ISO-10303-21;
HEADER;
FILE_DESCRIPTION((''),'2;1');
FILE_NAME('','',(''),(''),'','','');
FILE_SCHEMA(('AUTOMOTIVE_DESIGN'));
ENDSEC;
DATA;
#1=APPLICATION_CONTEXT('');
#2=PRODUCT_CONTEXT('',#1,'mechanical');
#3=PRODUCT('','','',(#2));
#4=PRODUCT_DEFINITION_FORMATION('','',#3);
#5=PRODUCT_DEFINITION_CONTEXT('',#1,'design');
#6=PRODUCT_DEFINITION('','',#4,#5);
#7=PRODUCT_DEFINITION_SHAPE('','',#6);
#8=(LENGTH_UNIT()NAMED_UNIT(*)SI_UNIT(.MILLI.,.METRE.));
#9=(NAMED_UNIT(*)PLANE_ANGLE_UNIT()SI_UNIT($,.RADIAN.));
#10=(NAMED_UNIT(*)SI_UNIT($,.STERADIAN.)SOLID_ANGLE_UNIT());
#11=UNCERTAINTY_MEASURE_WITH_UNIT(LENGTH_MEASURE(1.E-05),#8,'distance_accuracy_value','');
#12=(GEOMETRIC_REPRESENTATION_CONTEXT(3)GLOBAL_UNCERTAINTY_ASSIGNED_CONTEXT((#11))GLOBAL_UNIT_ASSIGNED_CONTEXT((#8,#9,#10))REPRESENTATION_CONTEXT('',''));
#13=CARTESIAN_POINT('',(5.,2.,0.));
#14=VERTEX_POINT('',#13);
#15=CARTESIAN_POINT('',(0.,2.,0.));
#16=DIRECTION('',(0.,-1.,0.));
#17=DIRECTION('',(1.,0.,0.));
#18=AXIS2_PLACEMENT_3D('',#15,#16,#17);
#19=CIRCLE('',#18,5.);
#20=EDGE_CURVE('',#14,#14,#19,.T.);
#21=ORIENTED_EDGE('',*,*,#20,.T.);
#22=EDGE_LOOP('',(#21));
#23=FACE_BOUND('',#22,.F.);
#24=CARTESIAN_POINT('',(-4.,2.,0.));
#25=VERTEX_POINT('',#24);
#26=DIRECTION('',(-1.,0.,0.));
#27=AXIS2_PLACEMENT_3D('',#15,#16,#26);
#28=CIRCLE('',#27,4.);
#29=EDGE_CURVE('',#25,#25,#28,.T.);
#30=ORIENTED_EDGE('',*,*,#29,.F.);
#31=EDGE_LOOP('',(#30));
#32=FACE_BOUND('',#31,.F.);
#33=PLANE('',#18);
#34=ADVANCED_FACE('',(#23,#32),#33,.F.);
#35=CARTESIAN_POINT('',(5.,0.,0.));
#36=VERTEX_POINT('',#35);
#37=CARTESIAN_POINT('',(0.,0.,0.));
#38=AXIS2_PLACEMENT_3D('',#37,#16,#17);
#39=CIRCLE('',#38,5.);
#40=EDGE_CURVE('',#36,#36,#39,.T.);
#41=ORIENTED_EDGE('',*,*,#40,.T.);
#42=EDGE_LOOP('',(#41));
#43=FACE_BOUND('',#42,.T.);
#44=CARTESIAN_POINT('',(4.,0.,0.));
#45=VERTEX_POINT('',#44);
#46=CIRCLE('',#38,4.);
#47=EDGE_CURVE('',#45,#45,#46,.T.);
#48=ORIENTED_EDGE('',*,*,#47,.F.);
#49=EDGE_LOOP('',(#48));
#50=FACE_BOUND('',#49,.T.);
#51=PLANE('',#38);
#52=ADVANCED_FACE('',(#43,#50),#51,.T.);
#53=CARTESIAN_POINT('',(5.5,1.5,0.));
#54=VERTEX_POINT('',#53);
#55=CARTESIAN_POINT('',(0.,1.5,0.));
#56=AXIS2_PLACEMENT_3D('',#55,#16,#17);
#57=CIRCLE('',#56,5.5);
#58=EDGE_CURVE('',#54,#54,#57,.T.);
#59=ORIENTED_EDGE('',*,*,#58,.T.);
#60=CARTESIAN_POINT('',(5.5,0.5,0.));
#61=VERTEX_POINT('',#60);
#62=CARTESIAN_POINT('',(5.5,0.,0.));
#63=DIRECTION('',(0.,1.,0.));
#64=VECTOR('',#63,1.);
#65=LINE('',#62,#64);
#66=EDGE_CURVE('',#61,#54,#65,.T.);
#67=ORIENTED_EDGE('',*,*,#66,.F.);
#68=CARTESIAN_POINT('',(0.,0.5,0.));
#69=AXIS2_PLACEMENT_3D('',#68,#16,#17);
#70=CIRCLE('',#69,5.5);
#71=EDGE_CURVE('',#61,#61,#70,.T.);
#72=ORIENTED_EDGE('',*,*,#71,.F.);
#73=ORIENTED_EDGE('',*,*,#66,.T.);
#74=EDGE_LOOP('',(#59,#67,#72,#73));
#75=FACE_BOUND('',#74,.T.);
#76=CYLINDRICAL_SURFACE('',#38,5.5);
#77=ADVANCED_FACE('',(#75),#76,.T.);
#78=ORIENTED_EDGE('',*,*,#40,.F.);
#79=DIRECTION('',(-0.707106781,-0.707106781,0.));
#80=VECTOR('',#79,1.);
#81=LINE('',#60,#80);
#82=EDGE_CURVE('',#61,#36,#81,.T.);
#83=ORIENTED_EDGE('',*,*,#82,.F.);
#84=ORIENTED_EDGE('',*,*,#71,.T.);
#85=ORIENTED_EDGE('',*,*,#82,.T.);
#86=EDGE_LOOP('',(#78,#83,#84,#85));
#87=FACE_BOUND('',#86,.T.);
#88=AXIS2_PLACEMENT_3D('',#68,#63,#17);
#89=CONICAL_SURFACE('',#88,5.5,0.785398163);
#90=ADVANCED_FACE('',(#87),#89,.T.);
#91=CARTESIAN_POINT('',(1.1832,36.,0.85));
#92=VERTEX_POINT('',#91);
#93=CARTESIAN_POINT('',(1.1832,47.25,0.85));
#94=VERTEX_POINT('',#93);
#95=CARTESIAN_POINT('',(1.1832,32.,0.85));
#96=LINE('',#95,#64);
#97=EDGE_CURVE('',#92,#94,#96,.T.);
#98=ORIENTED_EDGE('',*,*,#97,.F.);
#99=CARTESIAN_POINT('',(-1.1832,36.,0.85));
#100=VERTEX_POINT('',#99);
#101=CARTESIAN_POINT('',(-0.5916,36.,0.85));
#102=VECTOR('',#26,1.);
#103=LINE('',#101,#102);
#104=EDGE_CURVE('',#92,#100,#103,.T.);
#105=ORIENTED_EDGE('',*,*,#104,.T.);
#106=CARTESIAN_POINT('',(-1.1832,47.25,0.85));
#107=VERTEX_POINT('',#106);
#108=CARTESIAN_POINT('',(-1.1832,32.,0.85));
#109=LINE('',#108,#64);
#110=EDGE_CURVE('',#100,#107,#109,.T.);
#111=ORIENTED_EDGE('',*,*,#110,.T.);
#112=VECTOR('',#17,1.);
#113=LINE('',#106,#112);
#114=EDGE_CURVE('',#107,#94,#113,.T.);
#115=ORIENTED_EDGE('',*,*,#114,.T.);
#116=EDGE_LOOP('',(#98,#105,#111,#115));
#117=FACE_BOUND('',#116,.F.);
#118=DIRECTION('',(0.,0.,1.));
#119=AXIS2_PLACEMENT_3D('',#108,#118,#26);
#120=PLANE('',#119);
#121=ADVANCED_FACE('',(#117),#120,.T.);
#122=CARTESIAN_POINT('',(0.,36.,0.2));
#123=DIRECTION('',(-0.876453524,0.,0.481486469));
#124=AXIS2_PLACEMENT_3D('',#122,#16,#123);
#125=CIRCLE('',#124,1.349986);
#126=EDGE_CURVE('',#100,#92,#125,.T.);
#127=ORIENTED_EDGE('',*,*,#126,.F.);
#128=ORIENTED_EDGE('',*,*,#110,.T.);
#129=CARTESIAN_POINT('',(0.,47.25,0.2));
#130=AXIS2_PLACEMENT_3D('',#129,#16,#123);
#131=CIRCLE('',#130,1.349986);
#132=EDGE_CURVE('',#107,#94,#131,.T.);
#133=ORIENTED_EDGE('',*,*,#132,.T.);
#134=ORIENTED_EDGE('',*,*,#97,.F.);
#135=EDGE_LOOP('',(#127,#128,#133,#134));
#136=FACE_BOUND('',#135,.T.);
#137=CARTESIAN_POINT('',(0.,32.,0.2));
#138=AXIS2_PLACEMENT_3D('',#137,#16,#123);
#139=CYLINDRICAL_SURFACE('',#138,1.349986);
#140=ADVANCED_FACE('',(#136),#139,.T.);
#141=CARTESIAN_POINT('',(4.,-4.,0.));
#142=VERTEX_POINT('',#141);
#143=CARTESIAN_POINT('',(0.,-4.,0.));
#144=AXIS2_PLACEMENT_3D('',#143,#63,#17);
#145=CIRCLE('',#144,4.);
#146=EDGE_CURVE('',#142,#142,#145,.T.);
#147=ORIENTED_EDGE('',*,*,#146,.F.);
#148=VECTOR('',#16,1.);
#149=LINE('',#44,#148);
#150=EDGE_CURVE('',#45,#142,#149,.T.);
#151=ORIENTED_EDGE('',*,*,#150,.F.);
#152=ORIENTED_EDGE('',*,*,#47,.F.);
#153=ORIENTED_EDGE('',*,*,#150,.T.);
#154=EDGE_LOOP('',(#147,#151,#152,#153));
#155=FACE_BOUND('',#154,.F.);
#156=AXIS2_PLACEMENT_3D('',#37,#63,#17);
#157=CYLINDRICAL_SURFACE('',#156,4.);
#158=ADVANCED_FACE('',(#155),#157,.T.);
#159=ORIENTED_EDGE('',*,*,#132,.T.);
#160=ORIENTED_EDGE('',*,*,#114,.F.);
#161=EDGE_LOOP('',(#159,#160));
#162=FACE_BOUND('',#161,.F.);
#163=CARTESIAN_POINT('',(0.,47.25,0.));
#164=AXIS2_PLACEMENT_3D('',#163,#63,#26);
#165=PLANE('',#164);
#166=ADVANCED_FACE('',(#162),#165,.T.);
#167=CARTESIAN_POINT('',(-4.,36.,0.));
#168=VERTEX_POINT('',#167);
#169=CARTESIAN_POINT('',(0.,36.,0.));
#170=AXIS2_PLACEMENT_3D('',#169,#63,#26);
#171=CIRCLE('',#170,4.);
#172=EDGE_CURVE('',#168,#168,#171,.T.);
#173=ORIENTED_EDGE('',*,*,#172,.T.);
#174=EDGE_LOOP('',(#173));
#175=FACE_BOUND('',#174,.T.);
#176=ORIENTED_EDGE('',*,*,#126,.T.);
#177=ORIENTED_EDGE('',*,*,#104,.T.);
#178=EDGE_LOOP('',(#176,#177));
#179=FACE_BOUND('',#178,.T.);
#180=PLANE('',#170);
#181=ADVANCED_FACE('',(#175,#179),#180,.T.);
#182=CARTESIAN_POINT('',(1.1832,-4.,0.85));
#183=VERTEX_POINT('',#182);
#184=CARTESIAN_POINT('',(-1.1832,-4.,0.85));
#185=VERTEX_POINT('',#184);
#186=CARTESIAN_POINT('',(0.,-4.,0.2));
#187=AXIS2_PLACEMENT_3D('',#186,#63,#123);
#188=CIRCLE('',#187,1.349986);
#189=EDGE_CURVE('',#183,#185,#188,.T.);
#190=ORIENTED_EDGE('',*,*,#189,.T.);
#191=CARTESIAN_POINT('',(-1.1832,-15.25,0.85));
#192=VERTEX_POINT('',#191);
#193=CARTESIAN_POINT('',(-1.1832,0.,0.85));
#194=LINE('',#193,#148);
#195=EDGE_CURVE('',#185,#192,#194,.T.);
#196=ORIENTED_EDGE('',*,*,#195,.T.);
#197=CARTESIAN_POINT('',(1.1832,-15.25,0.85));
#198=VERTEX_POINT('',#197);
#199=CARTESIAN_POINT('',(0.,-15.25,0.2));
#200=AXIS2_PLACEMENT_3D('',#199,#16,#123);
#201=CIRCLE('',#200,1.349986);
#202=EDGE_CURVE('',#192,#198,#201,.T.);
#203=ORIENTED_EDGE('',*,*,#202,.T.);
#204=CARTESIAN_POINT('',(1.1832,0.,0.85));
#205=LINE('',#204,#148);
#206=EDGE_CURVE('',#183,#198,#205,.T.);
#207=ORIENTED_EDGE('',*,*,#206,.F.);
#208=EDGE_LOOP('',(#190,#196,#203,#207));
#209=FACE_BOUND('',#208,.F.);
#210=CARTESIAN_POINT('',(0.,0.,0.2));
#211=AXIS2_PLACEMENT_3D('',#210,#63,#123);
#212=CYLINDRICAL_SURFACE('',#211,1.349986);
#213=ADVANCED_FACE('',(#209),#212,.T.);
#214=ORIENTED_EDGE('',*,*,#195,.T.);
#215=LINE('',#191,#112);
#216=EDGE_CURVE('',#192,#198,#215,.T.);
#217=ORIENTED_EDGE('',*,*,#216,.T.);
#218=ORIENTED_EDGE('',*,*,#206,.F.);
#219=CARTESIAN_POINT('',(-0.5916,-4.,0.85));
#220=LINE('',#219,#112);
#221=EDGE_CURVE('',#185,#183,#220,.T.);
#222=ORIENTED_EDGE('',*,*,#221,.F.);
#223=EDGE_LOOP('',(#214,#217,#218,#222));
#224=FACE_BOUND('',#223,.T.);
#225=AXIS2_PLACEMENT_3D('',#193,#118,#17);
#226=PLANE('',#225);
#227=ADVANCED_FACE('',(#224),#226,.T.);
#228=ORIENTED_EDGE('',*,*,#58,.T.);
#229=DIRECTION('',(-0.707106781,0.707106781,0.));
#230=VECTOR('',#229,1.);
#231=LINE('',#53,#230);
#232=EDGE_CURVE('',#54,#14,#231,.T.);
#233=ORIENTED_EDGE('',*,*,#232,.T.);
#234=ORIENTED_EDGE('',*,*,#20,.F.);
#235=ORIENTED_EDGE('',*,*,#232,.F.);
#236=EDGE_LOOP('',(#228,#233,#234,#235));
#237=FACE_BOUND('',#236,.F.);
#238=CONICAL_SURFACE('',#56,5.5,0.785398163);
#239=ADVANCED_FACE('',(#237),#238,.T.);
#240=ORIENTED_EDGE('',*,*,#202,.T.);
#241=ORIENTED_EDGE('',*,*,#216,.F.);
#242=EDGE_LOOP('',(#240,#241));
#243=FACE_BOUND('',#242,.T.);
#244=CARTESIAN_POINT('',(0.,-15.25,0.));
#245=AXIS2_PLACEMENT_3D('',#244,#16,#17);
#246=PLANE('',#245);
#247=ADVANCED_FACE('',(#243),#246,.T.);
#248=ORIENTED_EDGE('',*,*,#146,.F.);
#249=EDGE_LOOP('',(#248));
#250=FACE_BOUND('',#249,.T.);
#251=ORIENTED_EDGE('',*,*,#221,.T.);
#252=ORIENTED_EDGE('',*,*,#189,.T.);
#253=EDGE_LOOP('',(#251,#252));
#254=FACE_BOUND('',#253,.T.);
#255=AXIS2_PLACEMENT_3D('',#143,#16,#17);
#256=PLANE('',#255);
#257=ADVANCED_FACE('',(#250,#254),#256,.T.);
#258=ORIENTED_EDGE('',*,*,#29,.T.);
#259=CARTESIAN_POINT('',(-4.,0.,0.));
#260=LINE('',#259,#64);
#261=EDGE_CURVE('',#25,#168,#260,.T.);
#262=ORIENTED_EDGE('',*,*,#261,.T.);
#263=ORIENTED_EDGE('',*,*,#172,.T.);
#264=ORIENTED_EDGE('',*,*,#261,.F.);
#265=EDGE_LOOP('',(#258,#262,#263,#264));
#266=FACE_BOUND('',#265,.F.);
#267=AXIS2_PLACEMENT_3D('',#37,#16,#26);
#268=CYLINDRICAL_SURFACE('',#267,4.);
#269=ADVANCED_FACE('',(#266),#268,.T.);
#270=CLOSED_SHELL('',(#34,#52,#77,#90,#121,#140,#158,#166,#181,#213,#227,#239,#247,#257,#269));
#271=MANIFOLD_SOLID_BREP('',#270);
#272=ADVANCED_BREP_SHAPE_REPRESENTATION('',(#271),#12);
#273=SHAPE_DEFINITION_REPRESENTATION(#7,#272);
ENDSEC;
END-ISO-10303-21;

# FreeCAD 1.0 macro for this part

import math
import FreeCAD as App
import Part
import Sketcher


def edges_at(feature, points):
    """Names of the edges that pass closest to the given points."""
    edges = feature.Shape.Edges
    near = lambda p: min(range(len(edges)), key=lambda i: edges[i].distToShape(Part.Vertex(*p))[0])
    return sorted({f"Edge{near(p) + 1}" for p in points})

doc = App.newDocument("Part")
params = doc.addObject("Spreadsheet::Sheet", "Params")
for row, (alias, value) in enumerate([
    ("sketch1_diameter", "8 mm"),
    ("pad1_length", "36 mm"),
    ("sketch2_radius", "1.35 mm"),
    ("pad2_length", "15.25 mm"),
    ("sketch3_diameter", "11 mm"),
    ("pad3_length", "2 mm"),
    ("chamfer_size", "0.5 mm"),
    ("sketch4_diameter", "8 mm"),
    ("pad4_length", "4 mm"),
], start=1):
    params.set(f"A{row}", alias)
    params.set(f"B{row}", "=" + value)
    params.setAlias(f"B{row}", alias)

body = doc.addObject("PartDesign::Body", "Body")

sketch1 = body.newObject("Sketcher::SketchObject", "Sketch")
sketch1.AttachmentSupport = (doc.getObject("XZ_Plane"), [""])
sketch1.MapMode = "FlatFace"
sketch1.addGeometry(Part.Circle(App.Vector(0, 0, 0), App.Vector(0, 0, 1), 4), False)
sketch1.addConstraint([
    Sketcher.Constraint("Coincident", 0, 3, -1, 1),
    Sketcher.Constraint("Diameter", 0, 8.0),
])
sketch1.setExpression("Constraints[1]", "Params.sketch1_diameter")
pad1 = body.newObject("PartDesign::Pad", "Pad")
pad1.Profile = sketch1
pad1.setExpression("Length", "Params.pad1_length")
pad1.Reversed = True

sketch2 = body.newObject("Sketcher::SketchObject", "Sketch001")
sketch2.AttachmentSupport = (doc.getObject("XZ_Plane"), [""])
sketch2.MapMode = "FlatFace"
sketch2.addGeometry([
    Part.LineSegment(App.Vector(1.2, 0.8, 0), App.Vector(-1.2, 0.8, 0)),
    Part.ArcOfCircle(Part.Circle(App.Vector(0, 0.2, 0), App.Vector(0, 0, 1), 1.3), math.radians(151), math.radians(389)),
], False)
sketch2.addConstraint([
    Sketcher.Constraint("Coincident", 0, 1, 1, 2),
    Sketcher.Constraint("Coincident", 1, 1, 0, 2),
    Sketcher.Constraint("Horizontal", 0),
    Sketcher.Constraint("PointOnObject", 1, 3, -2),
    Sketcher.Constraint("Radius", 1, 1.35),
    Sketcher.Constraint("DistanceY", -1, 1, 1, 3, 0.2),
    Sketcher.Constraint("DistanceY", -1, 1, 0, 1, 0.85),
])
sketch2.setExpression("Constraints[4]", "Params.sketch2_radius")
pad2 = body.newObject("PartDesign::Pad", "Pad001")
pad2.Profile = sketch2
pad2.setExpression("Length", "Params.pad2_length")

sketch3 = body.newObject("Sketcher::SketchObject", "Sketch002")
sketch3.AttachmentSupport = (doc.getObject("XZ_Plane"), [""])
sketch3.MapMode = "FlatFace"
sketch3.addGeometry(Part.Circle(App.Vector(0, 0, 0), App.Vector(0, 0, 1), 6), False)
sketch3.addConstraint([
    Sketcher.Constraint("Coincident", 0, 3, -1, 1),
    Sketcher.Constraint("Diameter", 0, 11.0),
])
sketch3.setExpression("Constraints[1]", "Params.sketch3_diameter")
pad3 = body.newObject("PartDesign::Pad", "Pad002")
pad3.Profile = sketch3
pad3.setExpression("Length", "Params.pad3_length")
pad3.Reversed = True
doc.recompute()

chamfer = body.newObject("PartDesign::Chamfer", "Chamfer")
chamfer.Base = (pad3, edges_at(pad3, [(-5.5, 0, 0), (-5.5, 2, 0)]))
chamfer.setExpression("Size", "Params.chamfer_size")

sketch4 = body.newObject("Sketcher::SketchObject", "Sketch003")
sketch4.AttachmentSupport = (doc.getObject("XZ_Plane"), [""])
sketch4.MapMode = "FlatFace"
sketch4.addGeometry(Part.Circle(App.Vector(0, 0, 0), App.Vector(0, 0, 1), 4), False)
sketch4.addConstraint([
    Sketcher.Constraint("Coincident", 0, 3, -1, 1),
    Sketcher.Constraint("Diameter", 0, 8.0),
])
sketch4.setExpression("Constraints[1]", "Params.sketch4_diameter")
pad4 = body.newObject("PartDesign::Pad", "Pad003")
pad4.Profile = sketch4
pad4.setExpression("Length", "Params.pad4_length")
doc.recompute()

datumplane = body.newObject("PartDesign::Plane", "DatumPlane")
datumplane.AttachmentSupport = (doc.getObject("XZ_Plane"), [""])
datumplane.MapMode = "FlatFace"
datumplane.AttachmentOffset = App.Placement(App.Vector(0, 0, -16), App.Rotation())
mirrored = body.newObject("PartDesign::Mirrored", "Mirrored")
mirrored.Originals = [pad2]
mirrored.MirrorPlane = (datumplane, [""])
body.Tip = mirrored

doc.recompute()
